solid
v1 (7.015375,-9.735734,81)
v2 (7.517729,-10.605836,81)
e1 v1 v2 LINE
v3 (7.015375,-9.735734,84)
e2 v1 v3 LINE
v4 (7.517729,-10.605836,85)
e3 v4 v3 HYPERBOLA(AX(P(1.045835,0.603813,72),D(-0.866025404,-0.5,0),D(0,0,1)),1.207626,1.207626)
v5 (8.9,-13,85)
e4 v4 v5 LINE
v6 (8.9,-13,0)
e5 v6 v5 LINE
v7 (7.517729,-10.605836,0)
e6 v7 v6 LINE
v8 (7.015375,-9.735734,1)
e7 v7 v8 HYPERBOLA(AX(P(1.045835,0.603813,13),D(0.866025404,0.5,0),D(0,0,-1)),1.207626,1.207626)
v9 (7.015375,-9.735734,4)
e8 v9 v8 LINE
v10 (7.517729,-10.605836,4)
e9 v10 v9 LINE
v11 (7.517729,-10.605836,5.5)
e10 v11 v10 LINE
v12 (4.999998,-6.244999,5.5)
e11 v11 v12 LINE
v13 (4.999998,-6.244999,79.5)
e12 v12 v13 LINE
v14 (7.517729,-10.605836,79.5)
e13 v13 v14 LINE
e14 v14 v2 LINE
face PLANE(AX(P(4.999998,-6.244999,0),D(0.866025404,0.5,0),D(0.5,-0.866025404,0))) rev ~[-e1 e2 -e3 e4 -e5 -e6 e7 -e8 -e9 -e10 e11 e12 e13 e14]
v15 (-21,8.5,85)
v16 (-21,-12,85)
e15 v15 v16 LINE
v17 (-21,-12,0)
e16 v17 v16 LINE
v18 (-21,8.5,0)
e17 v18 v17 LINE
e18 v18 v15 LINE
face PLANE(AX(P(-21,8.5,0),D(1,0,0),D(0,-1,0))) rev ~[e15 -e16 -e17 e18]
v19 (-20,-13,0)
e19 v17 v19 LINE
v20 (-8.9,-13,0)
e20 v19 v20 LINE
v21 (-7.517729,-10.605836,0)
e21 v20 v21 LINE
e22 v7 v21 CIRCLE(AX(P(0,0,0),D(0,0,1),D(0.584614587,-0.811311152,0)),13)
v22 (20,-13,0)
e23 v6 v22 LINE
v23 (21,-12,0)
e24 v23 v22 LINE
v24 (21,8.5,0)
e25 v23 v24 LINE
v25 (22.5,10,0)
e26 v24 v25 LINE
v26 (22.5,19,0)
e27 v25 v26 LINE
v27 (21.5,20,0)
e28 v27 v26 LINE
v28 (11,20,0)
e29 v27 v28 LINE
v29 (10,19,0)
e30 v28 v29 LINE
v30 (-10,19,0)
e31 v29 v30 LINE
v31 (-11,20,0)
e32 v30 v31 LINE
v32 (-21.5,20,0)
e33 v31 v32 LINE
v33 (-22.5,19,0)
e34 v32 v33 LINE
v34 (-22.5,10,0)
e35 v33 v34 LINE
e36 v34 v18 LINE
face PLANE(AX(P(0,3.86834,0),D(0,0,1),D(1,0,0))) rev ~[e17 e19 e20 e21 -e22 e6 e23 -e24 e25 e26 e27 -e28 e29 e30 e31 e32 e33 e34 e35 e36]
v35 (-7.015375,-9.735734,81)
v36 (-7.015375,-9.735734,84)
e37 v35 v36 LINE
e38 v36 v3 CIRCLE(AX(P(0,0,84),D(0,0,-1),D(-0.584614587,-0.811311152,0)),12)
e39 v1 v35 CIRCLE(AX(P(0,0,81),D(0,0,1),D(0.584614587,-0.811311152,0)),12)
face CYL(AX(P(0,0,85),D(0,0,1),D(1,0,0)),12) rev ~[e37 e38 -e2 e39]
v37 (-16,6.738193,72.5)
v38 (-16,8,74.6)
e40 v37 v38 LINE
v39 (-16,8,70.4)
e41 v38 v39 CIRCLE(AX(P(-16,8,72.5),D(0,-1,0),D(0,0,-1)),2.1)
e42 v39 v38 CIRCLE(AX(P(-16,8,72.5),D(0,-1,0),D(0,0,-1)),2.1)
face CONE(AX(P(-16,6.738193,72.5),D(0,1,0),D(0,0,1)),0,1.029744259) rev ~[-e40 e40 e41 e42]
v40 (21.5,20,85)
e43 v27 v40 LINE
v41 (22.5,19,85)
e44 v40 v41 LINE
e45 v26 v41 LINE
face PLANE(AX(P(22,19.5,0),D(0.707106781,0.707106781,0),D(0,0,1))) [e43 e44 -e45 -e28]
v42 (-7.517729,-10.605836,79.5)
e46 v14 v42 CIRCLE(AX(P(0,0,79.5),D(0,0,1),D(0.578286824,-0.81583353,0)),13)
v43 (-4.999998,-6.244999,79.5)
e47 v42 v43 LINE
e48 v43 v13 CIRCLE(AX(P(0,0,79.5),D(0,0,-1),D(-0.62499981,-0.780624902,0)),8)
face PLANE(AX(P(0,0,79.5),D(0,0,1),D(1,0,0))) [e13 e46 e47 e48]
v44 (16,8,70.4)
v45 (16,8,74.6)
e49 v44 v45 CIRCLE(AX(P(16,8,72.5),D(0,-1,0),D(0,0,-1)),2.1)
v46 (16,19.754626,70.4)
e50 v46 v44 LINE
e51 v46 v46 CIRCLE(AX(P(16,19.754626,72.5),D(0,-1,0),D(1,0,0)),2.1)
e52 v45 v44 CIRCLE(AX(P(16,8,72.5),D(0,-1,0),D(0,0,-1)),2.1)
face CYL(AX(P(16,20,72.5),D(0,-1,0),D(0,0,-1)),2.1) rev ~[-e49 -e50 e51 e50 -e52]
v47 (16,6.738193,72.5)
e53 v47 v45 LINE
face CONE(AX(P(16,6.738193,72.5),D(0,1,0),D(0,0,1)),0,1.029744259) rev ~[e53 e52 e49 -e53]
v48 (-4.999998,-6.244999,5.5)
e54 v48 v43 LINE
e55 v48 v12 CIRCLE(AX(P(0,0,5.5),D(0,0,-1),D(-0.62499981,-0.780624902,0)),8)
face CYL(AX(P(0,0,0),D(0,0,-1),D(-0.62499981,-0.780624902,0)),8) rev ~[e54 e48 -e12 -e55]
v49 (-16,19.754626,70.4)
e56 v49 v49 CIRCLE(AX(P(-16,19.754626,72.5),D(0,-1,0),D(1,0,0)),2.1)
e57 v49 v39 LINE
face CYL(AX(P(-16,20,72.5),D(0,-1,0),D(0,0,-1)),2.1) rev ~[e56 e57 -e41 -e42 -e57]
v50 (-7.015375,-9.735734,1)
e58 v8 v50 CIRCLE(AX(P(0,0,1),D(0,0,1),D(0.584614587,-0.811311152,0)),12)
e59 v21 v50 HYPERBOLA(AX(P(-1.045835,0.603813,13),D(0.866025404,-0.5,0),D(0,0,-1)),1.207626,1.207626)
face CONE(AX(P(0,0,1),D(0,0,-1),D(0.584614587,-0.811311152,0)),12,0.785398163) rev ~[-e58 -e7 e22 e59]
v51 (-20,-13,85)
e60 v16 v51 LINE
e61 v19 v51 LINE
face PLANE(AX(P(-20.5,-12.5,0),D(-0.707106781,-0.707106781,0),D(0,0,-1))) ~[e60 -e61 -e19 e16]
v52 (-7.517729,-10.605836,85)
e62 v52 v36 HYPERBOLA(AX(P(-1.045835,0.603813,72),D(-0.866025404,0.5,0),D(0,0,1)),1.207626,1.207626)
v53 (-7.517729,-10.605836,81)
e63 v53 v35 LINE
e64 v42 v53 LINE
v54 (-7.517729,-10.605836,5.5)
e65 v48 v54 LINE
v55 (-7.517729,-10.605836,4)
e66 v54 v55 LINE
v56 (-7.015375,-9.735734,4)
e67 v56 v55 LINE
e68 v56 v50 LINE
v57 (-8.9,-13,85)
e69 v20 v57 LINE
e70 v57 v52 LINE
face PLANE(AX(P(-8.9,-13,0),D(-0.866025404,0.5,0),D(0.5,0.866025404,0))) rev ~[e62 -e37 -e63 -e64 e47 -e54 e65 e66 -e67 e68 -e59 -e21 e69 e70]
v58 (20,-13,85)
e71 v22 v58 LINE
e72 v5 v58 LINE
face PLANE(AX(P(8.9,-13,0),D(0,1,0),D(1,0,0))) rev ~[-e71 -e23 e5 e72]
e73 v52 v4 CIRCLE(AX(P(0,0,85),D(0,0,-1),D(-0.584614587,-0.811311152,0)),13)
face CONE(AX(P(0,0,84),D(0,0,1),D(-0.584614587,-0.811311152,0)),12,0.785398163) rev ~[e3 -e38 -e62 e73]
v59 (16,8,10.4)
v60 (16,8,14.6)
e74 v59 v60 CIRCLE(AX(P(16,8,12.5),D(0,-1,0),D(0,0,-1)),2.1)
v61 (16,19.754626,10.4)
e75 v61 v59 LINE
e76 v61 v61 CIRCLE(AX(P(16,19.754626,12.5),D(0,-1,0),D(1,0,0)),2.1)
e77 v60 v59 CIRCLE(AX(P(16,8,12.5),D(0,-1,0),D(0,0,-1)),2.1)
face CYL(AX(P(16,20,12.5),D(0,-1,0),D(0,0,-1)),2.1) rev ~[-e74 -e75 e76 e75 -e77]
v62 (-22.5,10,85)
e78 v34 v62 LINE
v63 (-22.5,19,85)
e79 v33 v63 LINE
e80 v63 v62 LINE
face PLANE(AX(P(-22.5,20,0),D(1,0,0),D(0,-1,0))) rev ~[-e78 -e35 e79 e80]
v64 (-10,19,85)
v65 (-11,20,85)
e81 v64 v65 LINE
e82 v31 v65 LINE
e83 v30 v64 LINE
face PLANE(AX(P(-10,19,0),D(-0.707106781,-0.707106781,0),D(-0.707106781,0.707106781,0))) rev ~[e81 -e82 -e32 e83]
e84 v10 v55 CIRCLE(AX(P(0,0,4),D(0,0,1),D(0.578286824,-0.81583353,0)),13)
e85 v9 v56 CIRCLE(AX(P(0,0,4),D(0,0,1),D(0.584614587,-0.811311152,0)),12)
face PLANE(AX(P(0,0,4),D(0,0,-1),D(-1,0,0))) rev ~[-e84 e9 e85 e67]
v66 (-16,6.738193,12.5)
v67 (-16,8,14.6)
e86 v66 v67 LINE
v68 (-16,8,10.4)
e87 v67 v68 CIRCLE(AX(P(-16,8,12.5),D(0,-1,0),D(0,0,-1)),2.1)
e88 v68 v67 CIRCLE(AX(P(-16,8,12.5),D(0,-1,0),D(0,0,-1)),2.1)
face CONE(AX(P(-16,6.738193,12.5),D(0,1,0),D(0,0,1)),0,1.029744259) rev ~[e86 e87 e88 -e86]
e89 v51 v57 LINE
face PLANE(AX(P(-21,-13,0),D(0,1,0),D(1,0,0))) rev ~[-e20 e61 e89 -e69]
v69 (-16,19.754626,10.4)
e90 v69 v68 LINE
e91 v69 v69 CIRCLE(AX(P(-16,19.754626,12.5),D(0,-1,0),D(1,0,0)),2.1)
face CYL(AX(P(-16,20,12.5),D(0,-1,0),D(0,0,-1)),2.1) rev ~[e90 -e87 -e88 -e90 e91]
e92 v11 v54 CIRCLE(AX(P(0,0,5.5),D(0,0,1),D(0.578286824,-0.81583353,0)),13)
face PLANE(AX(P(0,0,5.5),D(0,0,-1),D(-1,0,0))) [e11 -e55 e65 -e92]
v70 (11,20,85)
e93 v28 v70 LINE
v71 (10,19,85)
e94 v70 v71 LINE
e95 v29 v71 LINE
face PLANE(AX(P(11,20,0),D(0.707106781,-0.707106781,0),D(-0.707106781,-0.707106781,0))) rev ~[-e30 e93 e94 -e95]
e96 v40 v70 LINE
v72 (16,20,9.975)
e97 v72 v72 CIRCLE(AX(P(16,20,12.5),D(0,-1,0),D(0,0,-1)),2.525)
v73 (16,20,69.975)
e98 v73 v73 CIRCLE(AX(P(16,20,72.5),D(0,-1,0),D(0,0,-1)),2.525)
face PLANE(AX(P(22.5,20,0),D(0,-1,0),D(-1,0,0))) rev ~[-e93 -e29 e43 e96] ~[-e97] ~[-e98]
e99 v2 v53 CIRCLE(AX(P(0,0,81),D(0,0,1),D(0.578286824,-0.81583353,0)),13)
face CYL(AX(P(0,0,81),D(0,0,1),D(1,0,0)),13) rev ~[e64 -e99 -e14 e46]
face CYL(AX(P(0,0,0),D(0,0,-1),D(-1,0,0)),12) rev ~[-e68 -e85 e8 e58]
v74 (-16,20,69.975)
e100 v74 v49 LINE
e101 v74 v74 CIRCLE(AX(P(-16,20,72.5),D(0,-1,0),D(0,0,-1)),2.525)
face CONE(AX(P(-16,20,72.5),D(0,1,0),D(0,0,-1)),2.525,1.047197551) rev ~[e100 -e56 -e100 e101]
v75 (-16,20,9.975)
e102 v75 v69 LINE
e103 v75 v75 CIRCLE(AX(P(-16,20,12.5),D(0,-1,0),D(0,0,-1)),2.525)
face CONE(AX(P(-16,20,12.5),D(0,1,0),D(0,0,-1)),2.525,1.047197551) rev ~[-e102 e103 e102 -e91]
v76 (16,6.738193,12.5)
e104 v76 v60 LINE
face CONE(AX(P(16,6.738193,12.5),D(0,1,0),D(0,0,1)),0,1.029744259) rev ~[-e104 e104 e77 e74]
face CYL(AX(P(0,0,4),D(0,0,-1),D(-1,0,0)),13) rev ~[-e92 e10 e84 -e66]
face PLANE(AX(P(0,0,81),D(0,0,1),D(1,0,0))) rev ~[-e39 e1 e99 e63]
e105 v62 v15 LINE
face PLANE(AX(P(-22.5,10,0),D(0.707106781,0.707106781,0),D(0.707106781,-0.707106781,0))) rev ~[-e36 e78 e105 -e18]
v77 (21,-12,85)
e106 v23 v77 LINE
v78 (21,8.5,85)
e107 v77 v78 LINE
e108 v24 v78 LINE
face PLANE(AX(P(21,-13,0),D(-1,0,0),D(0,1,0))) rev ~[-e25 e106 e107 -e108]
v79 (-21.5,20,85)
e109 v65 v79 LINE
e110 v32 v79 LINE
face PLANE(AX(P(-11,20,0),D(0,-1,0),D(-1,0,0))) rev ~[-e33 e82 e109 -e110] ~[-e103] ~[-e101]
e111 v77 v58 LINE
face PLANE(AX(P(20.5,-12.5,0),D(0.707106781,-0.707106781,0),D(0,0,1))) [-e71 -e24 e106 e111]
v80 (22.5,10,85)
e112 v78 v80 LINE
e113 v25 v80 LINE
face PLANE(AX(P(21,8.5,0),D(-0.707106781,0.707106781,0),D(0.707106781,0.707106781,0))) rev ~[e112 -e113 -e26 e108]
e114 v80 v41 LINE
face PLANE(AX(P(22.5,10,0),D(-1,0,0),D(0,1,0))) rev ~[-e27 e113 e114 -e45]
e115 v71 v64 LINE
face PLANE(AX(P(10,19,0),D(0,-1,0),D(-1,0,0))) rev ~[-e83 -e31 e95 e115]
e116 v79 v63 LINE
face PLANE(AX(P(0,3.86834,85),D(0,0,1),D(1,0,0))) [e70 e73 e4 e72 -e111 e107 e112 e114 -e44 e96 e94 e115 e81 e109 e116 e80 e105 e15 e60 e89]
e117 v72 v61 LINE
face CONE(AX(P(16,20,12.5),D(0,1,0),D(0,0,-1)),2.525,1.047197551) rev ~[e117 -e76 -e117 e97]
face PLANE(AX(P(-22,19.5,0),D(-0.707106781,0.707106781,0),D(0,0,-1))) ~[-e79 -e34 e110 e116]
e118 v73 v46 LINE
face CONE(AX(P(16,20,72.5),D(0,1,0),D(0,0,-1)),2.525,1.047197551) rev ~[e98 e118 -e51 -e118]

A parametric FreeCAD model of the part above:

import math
import FreeCAD as App
import Part
import Sketcher
Q = App.Units.Quantity


def edges_at(feature, points):
    """Names of the edges that pass closest to the given points."""
    edges = feature.Shape.Edges
    near = lambda p: min(range(len(edges)), key=lambda i: edges[i].distToShape(Part.Vertex(*p))[0])
    return sorted({f"Edge{near(p) + 1}" for p in points})

doc = App.newDocument("Part")
body = doc.addObject("PartDesign::Body", "Body")

# Sketch on XY plane
sketch1 = doc.addObject("Sketcher::SketchObject", "Sketch")
body.addObject(sketch1)
sketch1.AttachmentSupport = (doc.XY_Plane, [""])
sketch1.MapMode = "FlatFace"
sketch1.addGeometry(Part.LineSegment(App.Vector(10, 19, 0), App.Vector(-10, 19, 0)), False)
sketch1.addGeometry(Part.LineSegment(App.Vector(-10, 19, 0), App.Vector(-11, 20, 0)), False)
sketch1.addGeometry(Part.LineSegment(App.Vector(-11, 20, 0), App.Vector(-22.5, 20, 0)), False)
sketch1.addGeometry(Part.LineSegment(App.Vector(-22.5, 20, 0), App.Vector(-22.5, 10, 0)), False)
sketch1.addGeometry(Part.LineSegment(App.Vector(-22.5, 10, 0), App.Vector(-21, 8.5, 0)), False)
sketch1.addGeometry(Part.LineSegment(App.Vector(-21, 8.5, 0), App.Vector(-21, -13, 0)), False)
sketch1.addGeometry(Part.LineSegment(App.Vector(-21, -13, 0), App.Vector(-8.9, -13, 0)), False)
sketch1.addGeometry(Part.LineSegment(App.Vector(-8.9, -13, 0), App.Vector(-5, -6.2, 0)), False)
sketch1.addGeometry(Part.ArcOfCircle(Part.Circle(App.Vector(0, 0, 0), App.Vector(0, 0, 1), 8), math.radians(-51), math.radians(231)), False)
sketch1.addGeometry(Part.LineSegment(App.Vector(5, -6.2, 0), App.Vector(8.9, -13, 0)), False)
sketch1.addGeometry(Part.LineSegment(App.Vector(8.9, -13, 0), App.Vector(21, -13, 0)), False)
sketch1.addGeometry(Part.LineSegment(App.Vector(21, -13, 0), App.Vector(21, 8.5, 0)), False)
sketch1.addGeometry(Part.LineSegment(App.Vector(21, 8.5, 0), App.Vector(22.5, 10, 0)), False)
sketch1.addGeometry(Part.LineSegment(App.Vector(22.5, 10, 0), App.Vector(22.5, 20, 0)), False)
sketch1.addGeometry(Part.LineSegment(App.Vector(22.5, 20, 0), App.Vector(11, 20, 0)), False)
sketch1.addGeometry(Part.LineSegment(App.Vector(11, 20, 0), App.Vector(10, 19, 0)), False)
sketch1.addConstraint(Sketcher.Constraint("Coincident", 0, 2, 1, 1))
sketch1.addConstraint(Sketcher.Constraint("Coincident", 1, 2, 2, 1))
sketch1.addConstraint(Sketcher.Constraint("Coincident", 2, 2, 3, 1))
sketch1.addConstraint(Sketcher.Constraint("Coincident", 3, 2, 4, 1))
sketch1.addConstraint(Sketcher.Constraint("Coincident", 4, 2, 5, 1))
sketch1.addConstraint(Sketcher.Constraint("Coincident", 5, 2, 6, 1))
sketch1.addConstraint(Sketcher.Constraint("Coincident", 6, 2, 7, 1))
sketch1.addConstraint(Sketcher.Constraint("Coincident", 7, 2, 8, 2))
sketch1.addConstraint(Sketcher.Constraint("Coincident", 8, 1, 9, 1))
sketch1.addConstraint(Sketcher.Constraint("Coincident", 9, 2, 10, 1))
sketch1.addConstraint(Sketcher.Constraint("Coincident", 10, 2, 11, 1))
sketch1.addConstraint(Sketcher.Constraint("Coincident", 11, 2, 12, 1))
sketch1.addConstraint(Sketcher.Constraint("Coincident", 12, 2, 13, 1))
sketch1.addConstraint(Sketcher.Constraint("Coincident", 13, 2, 14, 1))
sketch1.addConstraint(Sketcher.Constraint("Coincident", 14, 2, 15, 1))
sketch1.addConstraint(Sketcher.Constraint("Coincident", 15, 2, 0, 1))
sketch1.addConstraint(Sketcher.Constraint("Horizontal", 0))
sketch1.addConstraint(Sketcher.Constraint("Horizontal", 2))
sketch1.addConstraint(Sketcher.Constraint("Vertical", 3))
sketch1.addConstraint(Sketcher.Constraint("Vertical", 5))
sketch1.addConstraint(Sketcher.Constraint("Horizontal", 6))
sketch1.addConstraint(Sketcher.Constraint("Horizontal", 10))
sketch1.addConstraint(Sketcher.Constraint("Vertical", 11))
sketch1.addConstraint(Sketcher.Constraint("Vertical", 13))
sketch1.addConstraint(Sketcher.Constraint("Horizontal", 14))
sketch1.addConstraint(Sketcher.Constraint("Coincident", 8, 3, -1, 1))
sketch1.addConstraint(Sketcher.Constraint("Symmetric", 6, 2, 9, 2, -2))
sketch1.addConstraint(Sketcher.Constraint("Symmetric", 4, 2, 11, 2, -2))
sketch1.addConstraint(Sketcher.Constraint("Symmetric", 3, 2, 12, 2, -2))
sketch1.addConstraint(Sketcher.Constraint("Symmetric", 1, 2, 14, 2, -2))
sketch1.addConstraint(Sketcher.Constraint("Parallel", 1, 4))
sketch1.addConstraint(Sketcher.Constraint("Perpendicular", 4, 12))
sketch1.addConstraint(Sketcher.Constraint("Parallel", 12, 15))
sketch1.addConstraint(Sketcher.Constraint("Horizontal", 7, 2, 8, 1))
sketch1.addConstraint(Sketcher.Constraint("Radius", 8, Q("8 mm")))
sketch1.addConstraint(Sketcher.Constraint("DistanceX", 0, 2, 0, 1, Q("20 mm")))
sketch1.addConstraint(Sketcher.Constraint("DistanceY", 3, 2, 3, 1, Q("10 mm")))
sketch1.addConstraint(Sketcher.Constraint("Angle", 7, Q("60 deg")))
sketch1.addConstraint(Sketcher.Constraint("DistanceX", 2, 2, 2, 1, Q("11.5 mm")))
sketch1.addConstraint(Sketcher.Constraint("DistanceX", 6, 1, 6, 2, Q("12.1 mm")))
sketch1.addConstraint(Sketcher.Constraint("DistanceY", 5, 2, 5, 1, Q("21.5 mm")))
sketch1.addConstraint(Sketcher.Constraint("DistanceY", -1, 1, 0, 2, Q("19 mm")))
sketch1.addConstraint(Sketcher.Constraint("DistanceX", 1, 2, -1, 1, Q("11 mm")))
sketch1.addConstraint(Sketcher.Constraint("DistanceX", 4, 2, -1, 1, Q("21 mm")))
pad1 = doc.addObject("PartDesign::Pad", "Pad")
body.addObject(pad1)
pad1.Profile = sketch1
pad1.Length = 85
doc.recompute()

chamfer = doc.addObject("PartDesign::Chamfer", "Chamfer")
body.addObject(chamfer)
chamfer.Base = (pad1, edges_at(pad1, [(-22.5, 20, 42.5)]))
chamfer.Size = 1
doc.recompute()

chamfer2 = doc.addObject("PartDesign::Chamfer", "Chamfer001")
body.addObject(chamfer2)
chamfer2.Base = (chamfer, edges_at(chamfer, [(-21, -13, 42.5), (22.5, 20, 42.5), (21, -13, 42.5)]))
chamfer2.Size = 1

# Sketch on XZ plane
sketch2 = doc.addObject("Sketcher::SketchObject", "Sketch001")
body.addObject(sketch2)
sketch2.AttachmentSupport = (doc.XZ_Plane, [""])
sketch2.MapMode = "FlatFace"
sketch2.AttachmentOffset = App.Placement(App.Vector(0, 0, -20), App.Rotation())
sketch2.addGeometry(Part.Circle(App.Vector(-16, 12.5, 0), App.Vector(0, 0, 1), 2.1), False)
sketch2.addGeometry(Part.Circle(App.Vector(16, 12.5, 0), App.Vector(0, 0, 1), 2.1), False)
sketch2.addGeometry(Part.Circle(App.Vector(-16, 72.5, 0), App.Vector(0, 0, 1), 2.1), False)
sketch2.addGeometry(Part.Circle(App.Vector(16, 72.5, 0), App.Vector(0, 0, 1), 2.1), False)
sketch2.addConstraint(Sketcher.Constraint("Equal", 0, 1))
sketch2.addConstraint(Sketcher.Constraint("Equal", 1, 2))
sketch2.addConstraint(Sketcher.Constraint("Equal", 2, 3))
sketch2.addConstraint(Sketcher.Constraint("Symmetric", 0, 3, 1, 3, -2))
sketch2.addConstraint(Sketcher.Constraint("Symmetric", 2, 3, 3, 3, -2))
sketch2.addConstraint(Sketcher.Constraint("Vertical", 0, 3, 2, 3))
sketch2.addConstraint(Sketcher.Constraint("Diameter", 0, Q("4.2 mm")))
sketch2.addConstraint(Sketcher.Constraint("DistanceX", 0, 3, -1, 1, Q("16 mm")))
sketch2.addConstraint(Sketcher.Constraint("DistanceY", 0, 3, 2, 3, Q("60 mm")))
sketch2.addConstraint(Sketcher.Constraint("DistanceY", -1, 1, 0, 3, Q("12.5 mm")))
doc.recompute()
hole = doc.addObject("PartDesign::Hole", "Hole")
body.addObject(hole)
hole.Profile = sketch2
hole.ThreadType = "None"
hole.Diameter = 4.2
hole.DepthType = "Dimension"
hole.Depth = 12
hole.DrillPoint = "Angled"
hole.DrillPointAngle = 118
hole.HoleCutType = "Countersink"
hole.HoleCutDiameter = 5.05
hole.HoleCutCountersinkAngle = 120
hole.Reversed = True

# Sketch on XY plane
sketch3 = doc.addObject("Sketcher::SketchObject", "Sketch002")
body.addObject(sketch3)
sketch3.AttachmentSupport = (doc.XY_Plane, [""])
sketch3.MapMode = "FlatFace"
sketch3.AttachmentOffset = App.Placement(App.Vector(0, 0, 85), App.Rotation())
sketch3.addGeometry(Part.Circle(App.Vector(0, 0, 0), App.Vector(0, 0, 1), 12), False)
sketch3.addConstraint(Sketcher.Constraint("Coincident", 0, 3, -1, 1))
sketch3.addConstraint(Sketcher.Constraint("Diameter", 0, Q("24 mm")))
pocket1 = doc.addObject("PartDesign::Pocket", "Pocket")
body.addObject(pocket1)
pocket1.Profile = sketch3
pocket1.Length = 4

# Sketch on XY plane
sketch4 = doc.addObject("Sketcher::SketchObject", "Sketch003")
body.addObject(sketch4)
sketch4.AttachmentSupport = (doc.XY_Plane, [""])
sketch4.MapMode = "FlatFace"
sketch4.addGeometry(Part.Circle(App.Vector(0, 0, 0), App.Vector(0, 0, 1), 12), False)
sketch4.addConstraint(Sketcher.Constraint("Coincident", 0, 3, -1, 1))
sketch4.addConstraint(Sketcher.Constraint("Diameter", 0, Q("24 mm")))
pocket2 = doc.addObject("PartDesign::Pocket", "Pocket001")
body.addObject(pocket2)
pocket2.Profile = sketch4
pocket2.Length = 4
pocket2.Reversed = True
doc.recompute()

chamfer3 = doc.addObject("PartDesign::Chamfer", "Chamfer002")
body.addObject(chamfer3)
chamfer3.Base = (pocket2, edges_at(pocket2, [(0, 12, 0), (0, 12, 85)]))
chamfer3.Size = 1

# Sketch on XY plane
sketch5 = doc.addObject("Sketcher::SketchObject", "Sketch004")
body.addObject(sketch5)
sketch5.AttachmentSupport = (doc.XY_Plane, [""])
sketch5.MapMode = "FlatFace"
sketch5.AttachmentOffset = App.Placement(App.Vector(0, 0, 81), App.Rotation())
sketch5.addGeometry(Part.Circle(App.Vector(0, 0, 0), App.Vector(0, 0, 1), 13), False)
sketch5.addConstraint(Sketcher.Constraint("Coincident", 0, 3, -1, 1))
sketch5.addConstraint(Sketcher.Constraint("Diameter", 0, Q("26 mm")))
pocket3 = doc.addObject("PartDesign::Pocket", "Pocket002")
body.addObject(pocket3)
pocket3.Profile = sketch5
pocket3.Length = 1.5

# Sketch on XY plane
sketch6 = doc.addObject("Sketcher::SketchObject", "Sketch005")
body.addObject(sketch6)
sketch6.AttachmentSupport = (doc.XY_Plane, [""])
sketch6.MapMode = "FlatFace"
sketch6.AttachmentOffset = App.Placement(App.Vector(0, 0, 4), App.Rotation())
sketch6.addGeometry(Part.Circle(App.Vector(0, 0, 0), App.Vector(0, 0, 1), 13), False)
sketch6.addConstraint(Sketcher.Constraint("Coincident", 0, 3, -1, 1))
sketch6.addConstraint(Sketcher.Constraint("Diameter", 0, Q("26 mm")))
pocket4 = doc.addObject("PartDesign::Pocket", "Pocket003")
body.addObject(pocket4)
pocket4.Profile = sketch6
pocket4.Length = 1.5
pocket4.Reversed = True

doc.recompute()
